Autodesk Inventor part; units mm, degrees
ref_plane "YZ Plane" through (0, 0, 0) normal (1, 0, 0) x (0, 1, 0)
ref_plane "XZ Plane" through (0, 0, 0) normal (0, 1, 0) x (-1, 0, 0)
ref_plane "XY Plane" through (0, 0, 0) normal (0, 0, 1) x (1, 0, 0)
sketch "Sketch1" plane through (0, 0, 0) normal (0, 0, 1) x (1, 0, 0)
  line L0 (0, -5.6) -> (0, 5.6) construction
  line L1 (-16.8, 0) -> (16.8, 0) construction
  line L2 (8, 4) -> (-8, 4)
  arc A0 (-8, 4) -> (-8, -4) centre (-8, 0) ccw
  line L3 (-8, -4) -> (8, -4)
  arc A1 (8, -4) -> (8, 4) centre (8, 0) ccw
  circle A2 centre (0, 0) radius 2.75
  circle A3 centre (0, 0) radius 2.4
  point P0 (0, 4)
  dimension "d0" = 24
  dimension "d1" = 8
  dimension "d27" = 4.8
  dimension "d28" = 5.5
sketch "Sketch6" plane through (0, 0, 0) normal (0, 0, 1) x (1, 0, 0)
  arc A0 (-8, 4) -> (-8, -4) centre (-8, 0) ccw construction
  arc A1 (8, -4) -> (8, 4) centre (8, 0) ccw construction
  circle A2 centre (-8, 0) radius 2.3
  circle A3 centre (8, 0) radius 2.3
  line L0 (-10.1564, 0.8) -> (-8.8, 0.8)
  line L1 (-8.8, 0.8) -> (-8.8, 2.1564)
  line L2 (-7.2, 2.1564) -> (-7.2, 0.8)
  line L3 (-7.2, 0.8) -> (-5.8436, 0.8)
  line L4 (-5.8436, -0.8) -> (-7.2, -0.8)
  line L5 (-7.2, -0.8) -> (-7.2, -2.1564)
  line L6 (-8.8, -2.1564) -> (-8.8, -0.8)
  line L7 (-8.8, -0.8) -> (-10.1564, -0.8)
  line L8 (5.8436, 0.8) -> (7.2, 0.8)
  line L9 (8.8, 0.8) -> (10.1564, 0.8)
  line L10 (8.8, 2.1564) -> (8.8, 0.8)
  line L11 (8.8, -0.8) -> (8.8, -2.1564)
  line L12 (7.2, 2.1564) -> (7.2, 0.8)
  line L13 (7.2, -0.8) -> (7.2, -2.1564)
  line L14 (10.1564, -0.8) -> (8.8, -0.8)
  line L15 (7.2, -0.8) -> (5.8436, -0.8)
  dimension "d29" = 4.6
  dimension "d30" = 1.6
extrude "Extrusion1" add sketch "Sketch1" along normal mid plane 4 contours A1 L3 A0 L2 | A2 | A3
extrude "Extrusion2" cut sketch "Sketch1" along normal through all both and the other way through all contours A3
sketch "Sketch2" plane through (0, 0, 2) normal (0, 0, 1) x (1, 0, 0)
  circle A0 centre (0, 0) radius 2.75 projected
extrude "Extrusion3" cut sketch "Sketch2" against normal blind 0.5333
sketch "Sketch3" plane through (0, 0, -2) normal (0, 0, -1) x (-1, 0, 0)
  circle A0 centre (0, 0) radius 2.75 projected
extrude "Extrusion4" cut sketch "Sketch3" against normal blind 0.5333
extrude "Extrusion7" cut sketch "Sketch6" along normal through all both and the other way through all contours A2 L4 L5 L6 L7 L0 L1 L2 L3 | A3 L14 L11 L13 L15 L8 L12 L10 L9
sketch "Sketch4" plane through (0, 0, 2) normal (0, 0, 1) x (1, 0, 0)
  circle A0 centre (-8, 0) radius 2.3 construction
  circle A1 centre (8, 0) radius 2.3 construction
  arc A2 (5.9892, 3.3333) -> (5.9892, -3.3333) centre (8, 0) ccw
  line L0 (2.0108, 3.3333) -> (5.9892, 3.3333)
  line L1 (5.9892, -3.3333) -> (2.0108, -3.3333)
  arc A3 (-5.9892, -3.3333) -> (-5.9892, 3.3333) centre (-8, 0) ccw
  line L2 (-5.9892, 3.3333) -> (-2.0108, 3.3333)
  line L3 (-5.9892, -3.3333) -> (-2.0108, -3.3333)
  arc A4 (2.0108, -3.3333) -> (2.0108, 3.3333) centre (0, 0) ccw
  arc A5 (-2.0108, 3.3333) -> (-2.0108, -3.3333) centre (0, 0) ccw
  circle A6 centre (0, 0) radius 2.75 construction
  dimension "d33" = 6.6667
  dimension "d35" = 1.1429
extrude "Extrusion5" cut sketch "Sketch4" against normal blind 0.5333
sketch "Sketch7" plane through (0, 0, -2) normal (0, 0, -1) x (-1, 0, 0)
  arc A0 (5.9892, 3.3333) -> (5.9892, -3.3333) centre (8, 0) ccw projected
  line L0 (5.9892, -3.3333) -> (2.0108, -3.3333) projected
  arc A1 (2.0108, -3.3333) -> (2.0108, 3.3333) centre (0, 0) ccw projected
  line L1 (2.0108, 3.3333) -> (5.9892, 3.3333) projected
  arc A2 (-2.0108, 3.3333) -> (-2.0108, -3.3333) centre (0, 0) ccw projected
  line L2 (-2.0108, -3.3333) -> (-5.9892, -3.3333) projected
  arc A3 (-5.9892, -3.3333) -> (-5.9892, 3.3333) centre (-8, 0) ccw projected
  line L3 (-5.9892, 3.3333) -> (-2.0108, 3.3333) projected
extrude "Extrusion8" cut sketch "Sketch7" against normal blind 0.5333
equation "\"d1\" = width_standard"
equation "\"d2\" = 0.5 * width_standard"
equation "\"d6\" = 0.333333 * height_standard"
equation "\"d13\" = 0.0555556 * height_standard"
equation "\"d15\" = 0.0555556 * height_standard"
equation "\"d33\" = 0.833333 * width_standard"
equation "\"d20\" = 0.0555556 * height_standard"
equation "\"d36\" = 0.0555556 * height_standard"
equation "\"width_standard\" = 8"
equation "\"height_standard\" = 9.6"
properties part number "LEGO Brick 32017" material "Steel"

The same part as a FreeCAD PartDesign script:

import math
import FreeCAD as App
import Part
import Sketcher
from FreeCAD import Vector

doc = App.newDocument("Part")
body = doc.addObject("PartDesign::Body", "Body")

# Sketch on XY plane
sketch1 = body.newObject("Sketcher::SketchObject", "Sketch")
sketch1.AttachmentSupport = (doc.getObject("XY_Plane"), [""])
sketch1.MapMode = "FlatFace"
sketch1.addGeometry(Part.ArcOfCircle(Part.Circle(Vector(8, 0, 0), Vector(0, 0, 1), 4), math.radians(-90), math.radians(90)), False)
sketch1.addGeometry(Part.LineSegment(Vector(8, 4, 0), Vector(-8, 4, 0)), False)
sketch1.addGeometry(Part.ArcOfCircle(Part.Circle(Vector(-8, 0, 0), Vector(0, 0, 1), 4), math.radians(90), math.radians(270)), False)
sketch1.addGeometry(Part.LineSegment(Vector(-8, -4, 0), Vector(8, -4, 0)), False)
sketch1.addConstraint(Sketcher.Constraint("Tangent", 0, 2, 1, 1))
sketch1.addConstraint(Sketcher.Constraint("Tangent", 1, 2, 2, 1))
sketch1.addConstraint(Sketcher.Constraint("Tangent", 2, 2, 3, 1))
sketch1.addConstraint(Sketcher.Constraint("Tangent", 3, 2, 0, 1))
sketch1.addConstraint(Sketcher.Constraint("Horizontal", 1))
sketch1.addConstraint(Sketcher.Constraint("Horizontal", 3))
sketch1.addConstraint(Sketcher.Constraint("Symmetric", 0, 3, 2, 3, -1, 1))
sketch1.addConstraint(Sketcher.Constraint("Radius", 0, 4.0))
sketch1.addConstraint(Sketcher.Constraint("DistanceX", -1, 1, 0, 3, 8.0))
pad1 = body.newObject("PartDesign::Pad", "Pad")
pad1.Profile = sketch1
pad1.Length = 4
pad1.Midplane = True

# Sketch on XY plane
sketch2 = body.newObject("Sketcher::SketchObject", "Sketch001")
sketch2.AttachmentSupport = (doc.getObject("XY_Plane"), [""])
sketch2.MapMode = "FlatFace"
sketch2.addGeometry(Part.Circle(Vector(0, 0, 0), Vector(0, 0, 1), 2.4), False)
sketch2.addConstraint(Sketcher.Constraint("Coincident", 0, 3, -1, 1))
sketch2.addConstraint(Sketcher.Constraint("Diameter", 0, 4.8))
pocket1 = body.newObject("PartDesign::Pocket", "Pocket")
pocket1.Profile = sketch2
pocket1.Type = "ThroughAll"
pocket1.Midplane = True

# Sketch on XY plane
sketch3 = body.newObject("Sketcher::SketchObject", "Sketch002")
sketch3.AttachmentSupport = (doc.getObject("XY_Plane"), [""])
sketch3.MapMode = "FlatFace"
sketch3.AttachmentOffset = App.Placement(Vector(0, 0, 2), App.Rotation())
sketch3.addGeometry(Part.Circle(Vector(0, 0, 0), Vector(0, 0, 1), 2.8), False)
sketch3.addConstraint(Sketcher.Constraint("Coincident", 0, 3, -1, 1))
sketch3.addConstraint(Sketcher.Constraint("Diameter", 0, 5.5))
pocket2 = body.newObject("PartDesign::Pocket", "Pocket001")
pocket2.Profile = sketch3
pocket2.Length = 0.5333

# Sketch on XY plane
sketch4 = body.newObject("Sketcher::SketchObject", "Sketch003")
sketch4.AttachmentSupport = (doc.getObject("XY_Plane"), [""])
sketch4.MapMode = "FlatFace"
sketch4.AttachmentOffset = App.Placement(Vector(0, 0, -2), App.Rotation())
sketch4.addGeometry(Part.Circle(Vector(0, 0, 0), Vector(0, 0, 1), 2.8), False)
sketch4.addConstraint(Sketcher.Constraint("Coincident", 0, 3, -1, 1))
sketch4.addConstraint(Sketcher.Constraint("Diameter", 0, 5.5))
pocket3 = body.newObject("PartDesign::Pocket", "Pocket002")
pocket3.Profile = sketch4
pocket3.Length = 0.5333
pocket3.Reversed = True

# Sketch on XY plane
sketch5 = body.newObject("Sketcher::SketchObject", "Sketch004")
sketch5.AttachmentSupport = (doc.getObject("XY_Plane"), [""])
sketch5.MapMode = "FlatFace"
sketch5.addGeometry(Part.ArcOfCircle(Part.Circle(Vector(-8, 0, 0), Vector(0, 0, 1), 2.3), math.radians(-20), math.radians(20)), False)
sketch5.addGeometry(Part.LineSegment(Vector(-5.8, 0.8, 0), Vector(-7.2, 0.8, 0)), False)
sketch5.addGeometry(Part.LineSegment(Vector(-7.2, 0.8, 0), Vector(-7.2, 2.2, 0)), False)
sketch5.addGeometry(Part.ArcOfCircle(Part.Circle(Vector(-8, 0, 0), Vector(0, 0, 1), 2.3), math.radians(70), math.radians(110)), False)
sketch5.addGeometry(Part.LineSegment(Vector(-8.8, 2.2, 0), Vector(-8.8, 0.8, 0)), False)
sketch5.addGeometry(Part.LineSegment(Vector(-8.8, 0.8, 0), Vector(-10.2, 0.8, 0)), False)
sketch5.addGeometry(Part.ArcOfCircle(Part.Circle(Vector(-8, 0, 0), Vector(0, 0, 1), 2.3), math.radians(160), math.radians(200)), False)
sketch5.addGeometry(Part.LineSegment(Vector(-10.2, -0.8, 0), Vector(-8.8, -0.8, 0)), False)
sketch5.addGeometry(Part.LineSegment(Vector(-8.8, -0.8, 0), Vector(-8.8, -2.2, 0)), False)
sketch5.addGeometry(Part.ArcOfCircle(Part.Circle(Vector(-8, 0, 0), Vector(0, 0, 1), 2.3), math.radians(-110), math.radians(-70)), False)
sketch5.addGeometry(Part.LineSegment(Vector(-7.2, -2.2, 0), Vector(-7.2, -0.8, 0)), False)
sketch5.addGeometry(Part.LineSegment(Vector(-7.2, -0.8, 0), Vector(-5.8, -0.8, 0)), False)
sketch5.addGeometry(Part.ArcOfCircle(Part.Circle(Vector(8, 0, 0), Vector(0, 0, 1), 2.3), math.radians(-20), math.radians(20)), False)
sketch5.addGeometry(Part.LineSegment(Vector(10.2, 0.8, 0), Vector(8.8, 0.8, 0)), False)
sketch5.addGeometry(Part.LineSegment(Vector(8.8, 0.8, 0), Vector(8.8, 2.2, 0)), False)
sketch5.addGeometry(Part.ArcOfCircle(Part.Circle(Vector(8, 0, 0), Vector(0, 0, 1), 2.3), math.radians(70), math.radians(110)), False)
sketch5.addGeometry(Part.LineSegment(Vector(7.2, 2.2, 0), Vector(7.2, 0.8, 0)), False)
sketch5.addGeometry(Part.LineSegment(Vector(7.2, 0.8, 0), Vector(5.8, 0.8, 0)), False)
sketch5.addGeometry(Part.ArcOfCircle(Part.Circle(Vector(8, 0, 0), Vector(0, 0, 1), 2.3), math.radians(160), math.radians(200)), False)
sketch5.addGeometry(Part.LineSegment(Vector(5.8, -0.8, 0), Vector(7.2, -0.8, 0)), False)
sketch5.addGeometry(Part.LineSegment(Vector(7.2, -0.8, 0), Vector(7.2, -2.2, 0)), False)
sketch5.addGeometry(Part.ArcOfCircle(Part.Circle(Vector(8, 0, 0), Vector(0, 0, 1), 2.3), math.radians(-110), math.radians(-70)), False)
sketch5.addGeometry(Part.LineSegment(Vector(8.8, -2.2, 0), Vector(8.8, -0.8, 0)), False)
sketch5.addGeometry(Part.LineSegment(Vector(8.8, -0.8, 0), Vector(10.2, -0.8, 0)), False)
sketch5.addConstraint(Sketcher.Constraint("Coincident", 0, 2, 1, 1))
sketch5.addConstraint(Sketcher.Constraint("Coincident", 1, 2, 2, 1))
sketch5.addConstraint(Sketcher.Constraint("Coincident", 2, 2, 3, 1))
sketch5.addConstraint(Sketcher.Constraint("Coincident", 3, 2, 4, 1))
sketch5.addConstraint(Sketcher.Constraint("Coincident", 4, 2, 5, 1))
sketch5.addConstraint(Sketcher.Constraint("Coincident", 5, 2, 6, 1))
sketch5.addConstraint(Sketcher.Constraint("Coincident", 6, 2, 7, 1))
sketch5.addConstraint(Sketcher.Constraint("Coincident", 7, 2, 8, 1))
sketch5.addConstraint(Sketcher.Constraint("Coincident", 8, 2, 9, 1))
sketch5.addConstraint(Sketcher.Constraint("Coincident", 9, 2, 10, 1))
sketch5.addConstraint(Sketcher.Constraint("Coincident", 10, 2, 11, 1))
sketch5.addConstraint(Sketcher.Constraint("Coincident", 11, 2, 0, 1))
sketch5.addConstraint(Sketcher.Constraint("Coincident", 12, 2, 13, 1))
sketch5.addConstraint(Sketcher.Constraint("Coincident", 13, 2, 14, 1))
sketch5.addConstraint(Sketcher.Constraint("Coincident", 14, 2, 15, 1))
sketch5.addConstraint(Sketcher.Constraint("Coincident", 15, 2, 16, 1))
sketch5.addConstraint(Sketcher.Constraint("Coincident", 16, 2, 17, 1))
sketch5.addConstraint(Sketcher.Constraint("Coincident", 17, 2, 18, 1))
sketch5.addConstraint(Sketcher.Constraint("Coincident", 18, 2, 19, 1))
sketch5.addConstraint(Sketcher.Constraint("Coincident", 19, 2, 20, 1))
sketch5.addConstraint(Sketcher.Constraint("Coincident", 20, 2, 21, 1))
sketch5.addConstraint(Sketcher.Constraint("Coincident", 21, 2, 22, 1))
sketch5.addConstraint(Sketcher.Constraint("Coincident", 22, 2, 23, 1))
sketch5.addConstraint(Sketcher.Constraint("Coincident", 23, 2, 12, 1))
sketch5.addConstraint(Sketcher.Constraint("Horizontal", 1))
sketch5.addConstraint(Sketcher.Constraint("Vertical", 2))
sketch5.addConstraint(Sketcher.Constraint("Vertical", 4))
sketch5.addConstraint(Sketcher.Constraint("Horizontal", 5))
sketch5.addConstraint(Sketcher.Constraint("Horizontal", 7))
sketch5.addConstraint(Sketcher.Constraint("Vertical", 8))
sketch5.addConstraint(Sketcher.Constraint("Vertical", 10))
sketch5.addConstraint(Sketcher.Constraint("Horizontal", 11))
sketch5.addConstraint(Sketcher.Constraint("Horizontal", 13))
sketch5.addConstraint(Sketcher.Constraint("Vertical", 14))
sketch5.addConstraint(Sketcher.Constraint("Vertical", 16))
sketch5.addConstraint(Sketcher.Constraint("Horizontal", 17))
sketch5.addConstraint(Sketcher.Constraint("Horizontal", 19))
sketch5.addConstraint(Sketcher.Constraint("Vertical", 20))
sketch5.addConstraint(Sketcher.Constraint("Vertical", 22))
sketch5.addConstraint(Sketcher.Constraint("Horizontal", 23))
sketch5.addConstraint(Sketcher.Constraint("Coincident", 3, 3, 0, 3))
sketch5.addConstraint(Sketcher.Constraint("Coincident", 6, 3, 0, 3))
sketch5.addConstraint(Sketcher.Constraint("Coincident", 9, 3, 0, 3))
sketch5.addConstraint(Sketcher.Constraint("Coincident", 15, 3, 12, 3))
sketch5.addConstraint(Sketcher.Constraint("Coincident", 18, 3, 12, 3))
sketch5.addConstraint(Sketcher.Constraint("Coincident", 21, 3, 12, 3))
sketch5.addConstraint(Sketcher.Constraint("Equal", 0, 3))
sketch5.addConstraint(Sketcher.Constraint("Equal", 3, 6))
sketch5.addConstraint(Sketcher.Constraint("Equal", 6, 9))
sketch5.addConstraint(Sketcher.Constraint("Equal", 9, 12))
sketch5.addConstraint(Sketcher.Constraint("Equal", 12, 15))
sketch5.addConstraint(Sketcher.Constraint("Equal", 15, 18))
sketch5.addConstraint(Sketcher.Constraint("Equal", 18, 21))
sketch5.addConstraint(Sketcher.Constraint("Symmetric", 0, 3, 12, 3, -1, 1))
sketch5.addConstraint(Sketcher.Constraint("Symmetric", 7, 2, 13, 2, -1, 1))
sketch5.addConstraint(Sketcher.Constraint("Symmetric", 10, 2, 16, 2, -1, 1))
sketch5.addConstraint(Sketcher.Constraint("Symmetric", 1, 2, 19, 2, -1, 1))
sketch5.addConstraint(Sketcher.Constraint("Symmetric", 4, 2, 22, 2, -1, 1))
sketch5.addConstraint(Sketcher.Constraint("Symmetric", 5, 2, 12, 2, -2))
sketch5.addConstraint(Sketcher.Constraint("Symmetric", 1, 2, 16, 2, -2))
sketch5.addConstraint(Sketcher.Constraint("Horizontal", 2, 2, 3, 2))
sketch5.addConstraint(Sketcher.Constraint("Horizontal", 1, 2, 4, 2))
sketch5.addConstraint(Sketcher.Constraint("Horizontal", 8, 2, 9, 2))
sketch5.addConstraint(Sketcher.Constraint("Equal", 23, 2))
sketch5.addConstraint(Sketcher.Constraint("Radius", 0, 2.3))
sketch5.addConstraint(Sketcher.Constraint("DistanceX", 3, 2, 2, 2, 1.6))
sketch5.addConstraint(Sketcher.Constraint("DistanceX", 0, 3, -1, 1, 8.0))
pocket4 = body.newObject("PartDesign::Pocket", "Pocket003")
pocket4.Profile = sketch5
pocket4.Type = "ThroughAll"
pocket4.Midplane = True

# Sketch on XY plane
sketch6 = body.newObject("Sketcher::SketchObject", "Sketch005")
sketch6.AttachmentSupport = (doc.getObject("XY_Plane"), [""])
sketch6.MapMode = "FlatFace"
sketch6.AttachmentOffset = App.Placement(Vector(0, 0, 2), App.Rotation())
sketch6.addGeometry(Part.ArcOfCircle(Part.Circle(Vector(8, 0, 0), Vector(0, 0, 1), 3.9), math.radians(121), math.radians(239)), False)
sketch6.addGeometry(Part.LineSegment(Vector(6, 3.3, 0), Vector(2, 3.3, 0)), False)
sketch6.addGeometry(Part.ArcOfCircle(Part.Circle(Vector(0, 0, 0), Vector(0, 0, 1), 3.9), math.radians(-59), math.radians(59)), False)
sketch6.addGeometry(Part.LineSegment(Vector(2, -3.3, 0), Vector(6, -3.3, 0)), False)
sketch6.addGeometry(Part.ArcOfCircle(Part.Circle(Vector(-8, 0, 0), Vector(0, 0, 1), 3.9), math.radians(-59), math.radians(59)), False)
sketch6.addGeometry(Part.LineSegment(Vector(-6, -3.3, 0), Vector(-2, -3.3, 0)), False)
sketch6.addGeometry(Part.ArcOfCircle(Part.Circle(Vector(0, 0, 0), Vector(0, 0, 1), 3.9), math.radians(121), math.radians(239)), False)
sketch6.addGeometry(Part.LineSegment(Vector(-2, 3.3, 0), Vector(-6, 3.3, 0)), False)
sketch6.addConstraint(Sketcher.Constraint("Coincident", 0, 1, 1, 1))
sketch6.addConstraint(Sketcher.Constraint("Coincident", 1, 2, 2, 2))
sketch6.addConstraint(Sketcher.Constraint("Coincident", 2, 1, 3, 1))
sketch6.addConstraint(Sketcher.Constraint("Coincident", 3, 2, 0, 2))
sketch6.addConstraint(Sketcher.Constraint("Coincident", 4, 1, 5, 1))
sketch6.addConstraint(Sketcher.Constraint("Coincident", 5, 2, 6, 2))
sketch6.addConstraint(Sketcher.Constraint("Coincident", 6, 1, 7, 1))
sketch6.addConstraint(Sketcher.Constraint("Coincident", 7, 2, 4, 2))
sketch6.addConstraint(Sketcher.Constraint("Horizontal", 1))
sketch6.addConstraint(Sketcher.Constraint("Horizontal", 3))
sketch6.addConstraint(Sketcher.Constraint("Horizontal", 5))
sketch6.addConstraint(Sketcher.Constraint("Horizontal", 7))
sketch6.addConstraint(Sketcher.Constraint("Coincident", 2, 3, -1, 1))
sketch6.addConstraint(Sketcher.Constraint("Coincident", 6, 3, -1, 1))
sketch6.addConstraint(Sketcher.Constraint("Equal", 0, 2))
sketch6.addConstraint(Sketcher.Constraint("Equal", 2, 4))
sketch6.addConstraint(Sketcher.Constraint("Equal", 4, 6))
sketch6.addConstraint(Sketcher.Constraint("Symmetric", 0, 3, 4, 3, -1, 1))
sketch6.addConstraint(Sketcher.Constraint("Symmetric", 3, 2, 4, 1, -2))
sketch6.addConstraint(Sketcher.Constraint("Horizontal", 1, 2, 6, 1))
sketch6.addConstraint(Sketcher.Constraint("Vertical", 1, 2, 2, 1))
sketch6.addConstraint(Sketcher.Constraint("DistanceX", -1, 1, 0, 3, 8.0))
sketch6.addConstraint(Sketcher.Constraint("Radius", 0, 3.8928))
sketch6.addConstraint(Sketcher.Constraint("DistanceY", 2, 1, 1, 2, 6.6666))
pocket5 = body.newObject("PartDesign::Pocket", "Pocket004")
pocket5.Profile = sketch6
pocket5.Length = 0.5333

# Sketch on XY plane
sketch7 = body.newObject("Sketcher::SketchObject", "Sketch006")
sketch7.AttachmentSupport = (doc.getObject("XY_Plane"), [""])
sketch7.MapMode = "FlatFace"
sketch7.AttachmentOffset = App.Placement(Vector(0, 0, -2), App.Rotation())
sketch7.addGeometry(Part.ArcOfCircle(Part.Circle(Vector(-8, 0, 0), Vector(0, 0, 1), 3.9), math.radians(-59), math.radians(59)), False)
sketch7.addGeometry(Part.LineSegment(Vector(-6, 3.3, 0), Vector(-2, 3.3, 0)), False)
sketch7.addGeometry(Part.ArcOfCircle(Part.Circle(Vector(0, 0, 0), Vector(0, 0, 1), 3.9), math.radians(121), math.radians(239)), False)
sketch7.addGeometry(Part.LineSegment(Vector(-2, -3.3, 0), Vector(-6, -3.3, 0)), False)
sketch7.addGeometry(Part.ArcOfCircle(Part.Circle(Vector(0, 0, 0), Vector(0, 0, 1), 3.9), math.radians(-59), math.radians(59)), False)
sketch7.addGeometry(Part.LineSegment(Vector(2, 3.3, 0), Vector(6, 3.3, 0)), False)
sketch7.addGeometry(Part.ArcOfCircle(Part.Circle(Vector(8, 0, 0), Vector(0, 0, 1), 3.9), math.radians(121), math.radians(239)), False)
sketch7.addGeometry(Part.LineSegment(Vector(6, -3.3, 0), Vector(2, -3.3, 0)), False)
sketch7.addConstraint(Sketcher.Constraint("Coincident", 0, 2, 1, 1))
sketch7.addConstraint(Sketcher.Constraint("Coincident", 1, 2, 2, 1))
sketch7.addConstraint(Sketcher.Constraint("Coincident", 2, 2, 3, 1))
sketch7.addConstraint(Sketcher.Constraint("Coincident", 3, 2, 0, 1))
sketch7.addConstraint(Sketcher.Constraint("Coincident", 4, 2, 5, 1))
sketch7.addConstraint(Sketcher.Constraint("Coincident", 5, 2, 6, 1))
sketch7.addConstraint(Sketcher.Constraint("Coincident", 6, 2, 7, 1))
sketch7.addConstraint(Sketcher.Constraint("Coincident", 7, 2, 4, 1))
sketch7.addConstraint(Sketcher.Constraint("Horizontal", 1))
sketch7.addConstraint(Sketcher.Constraint("Horizontal", 3))
sketch7.addConstraint(Sketcher.Constraint("Horizontal", 5))
sketch7.addConstraint(Sketcher.Constraint("Horizontal", 7))
sketch7.addConstraint(Sketcher.Constraint("Coincident", 2, 3, -1, 1))
sketch7.addConstraint(Sketcher.Constraint("Coincident", 4, 3, -1, 1))
sketch7.addConstraint(Sketcher.Constraint("Equal", 0, 2))
sketch7.addConstraint(Sketcher.Constraint("Equal", 2, 4))
sketch7.addConstraint(Sketcher.Constraint("Equal", 4, 6))
sketch7.addConstraint(Sketcher.Constraint("Symmetric", 0, 3, 6, 3, -1, 1))
sketch7.addConstraint(Sketcher.Constraint("Symmetric", 0, 2, 5, 2, -2))
sketch7.addConstraint(Sketcher.Constraint("Horizontal", 3, 2, 6, 2))
sketch7.addConstraint(Sketcher.Constraint("Vertical", 1, 2, 2, 2))
sketch7.addConstraint(Sketcher.Constraint("DistanceX", 0, 3, -1, 1, 8.0))
sketch7.addConstraint(Sketcher.Constraint("Radius", 0, 3.8928))
sketch7.addConstraint(Sketcher.Constraint("DistanceX", 1, 1, 1, 2, 3.9784))
pocket6 = body.newObject("PartDesign::Pocket", "Pocket005")
pocket6.Profile = sketch7
pocket6.Length = 0.5333
pocket6.Reversed = True

doc.recompute()
